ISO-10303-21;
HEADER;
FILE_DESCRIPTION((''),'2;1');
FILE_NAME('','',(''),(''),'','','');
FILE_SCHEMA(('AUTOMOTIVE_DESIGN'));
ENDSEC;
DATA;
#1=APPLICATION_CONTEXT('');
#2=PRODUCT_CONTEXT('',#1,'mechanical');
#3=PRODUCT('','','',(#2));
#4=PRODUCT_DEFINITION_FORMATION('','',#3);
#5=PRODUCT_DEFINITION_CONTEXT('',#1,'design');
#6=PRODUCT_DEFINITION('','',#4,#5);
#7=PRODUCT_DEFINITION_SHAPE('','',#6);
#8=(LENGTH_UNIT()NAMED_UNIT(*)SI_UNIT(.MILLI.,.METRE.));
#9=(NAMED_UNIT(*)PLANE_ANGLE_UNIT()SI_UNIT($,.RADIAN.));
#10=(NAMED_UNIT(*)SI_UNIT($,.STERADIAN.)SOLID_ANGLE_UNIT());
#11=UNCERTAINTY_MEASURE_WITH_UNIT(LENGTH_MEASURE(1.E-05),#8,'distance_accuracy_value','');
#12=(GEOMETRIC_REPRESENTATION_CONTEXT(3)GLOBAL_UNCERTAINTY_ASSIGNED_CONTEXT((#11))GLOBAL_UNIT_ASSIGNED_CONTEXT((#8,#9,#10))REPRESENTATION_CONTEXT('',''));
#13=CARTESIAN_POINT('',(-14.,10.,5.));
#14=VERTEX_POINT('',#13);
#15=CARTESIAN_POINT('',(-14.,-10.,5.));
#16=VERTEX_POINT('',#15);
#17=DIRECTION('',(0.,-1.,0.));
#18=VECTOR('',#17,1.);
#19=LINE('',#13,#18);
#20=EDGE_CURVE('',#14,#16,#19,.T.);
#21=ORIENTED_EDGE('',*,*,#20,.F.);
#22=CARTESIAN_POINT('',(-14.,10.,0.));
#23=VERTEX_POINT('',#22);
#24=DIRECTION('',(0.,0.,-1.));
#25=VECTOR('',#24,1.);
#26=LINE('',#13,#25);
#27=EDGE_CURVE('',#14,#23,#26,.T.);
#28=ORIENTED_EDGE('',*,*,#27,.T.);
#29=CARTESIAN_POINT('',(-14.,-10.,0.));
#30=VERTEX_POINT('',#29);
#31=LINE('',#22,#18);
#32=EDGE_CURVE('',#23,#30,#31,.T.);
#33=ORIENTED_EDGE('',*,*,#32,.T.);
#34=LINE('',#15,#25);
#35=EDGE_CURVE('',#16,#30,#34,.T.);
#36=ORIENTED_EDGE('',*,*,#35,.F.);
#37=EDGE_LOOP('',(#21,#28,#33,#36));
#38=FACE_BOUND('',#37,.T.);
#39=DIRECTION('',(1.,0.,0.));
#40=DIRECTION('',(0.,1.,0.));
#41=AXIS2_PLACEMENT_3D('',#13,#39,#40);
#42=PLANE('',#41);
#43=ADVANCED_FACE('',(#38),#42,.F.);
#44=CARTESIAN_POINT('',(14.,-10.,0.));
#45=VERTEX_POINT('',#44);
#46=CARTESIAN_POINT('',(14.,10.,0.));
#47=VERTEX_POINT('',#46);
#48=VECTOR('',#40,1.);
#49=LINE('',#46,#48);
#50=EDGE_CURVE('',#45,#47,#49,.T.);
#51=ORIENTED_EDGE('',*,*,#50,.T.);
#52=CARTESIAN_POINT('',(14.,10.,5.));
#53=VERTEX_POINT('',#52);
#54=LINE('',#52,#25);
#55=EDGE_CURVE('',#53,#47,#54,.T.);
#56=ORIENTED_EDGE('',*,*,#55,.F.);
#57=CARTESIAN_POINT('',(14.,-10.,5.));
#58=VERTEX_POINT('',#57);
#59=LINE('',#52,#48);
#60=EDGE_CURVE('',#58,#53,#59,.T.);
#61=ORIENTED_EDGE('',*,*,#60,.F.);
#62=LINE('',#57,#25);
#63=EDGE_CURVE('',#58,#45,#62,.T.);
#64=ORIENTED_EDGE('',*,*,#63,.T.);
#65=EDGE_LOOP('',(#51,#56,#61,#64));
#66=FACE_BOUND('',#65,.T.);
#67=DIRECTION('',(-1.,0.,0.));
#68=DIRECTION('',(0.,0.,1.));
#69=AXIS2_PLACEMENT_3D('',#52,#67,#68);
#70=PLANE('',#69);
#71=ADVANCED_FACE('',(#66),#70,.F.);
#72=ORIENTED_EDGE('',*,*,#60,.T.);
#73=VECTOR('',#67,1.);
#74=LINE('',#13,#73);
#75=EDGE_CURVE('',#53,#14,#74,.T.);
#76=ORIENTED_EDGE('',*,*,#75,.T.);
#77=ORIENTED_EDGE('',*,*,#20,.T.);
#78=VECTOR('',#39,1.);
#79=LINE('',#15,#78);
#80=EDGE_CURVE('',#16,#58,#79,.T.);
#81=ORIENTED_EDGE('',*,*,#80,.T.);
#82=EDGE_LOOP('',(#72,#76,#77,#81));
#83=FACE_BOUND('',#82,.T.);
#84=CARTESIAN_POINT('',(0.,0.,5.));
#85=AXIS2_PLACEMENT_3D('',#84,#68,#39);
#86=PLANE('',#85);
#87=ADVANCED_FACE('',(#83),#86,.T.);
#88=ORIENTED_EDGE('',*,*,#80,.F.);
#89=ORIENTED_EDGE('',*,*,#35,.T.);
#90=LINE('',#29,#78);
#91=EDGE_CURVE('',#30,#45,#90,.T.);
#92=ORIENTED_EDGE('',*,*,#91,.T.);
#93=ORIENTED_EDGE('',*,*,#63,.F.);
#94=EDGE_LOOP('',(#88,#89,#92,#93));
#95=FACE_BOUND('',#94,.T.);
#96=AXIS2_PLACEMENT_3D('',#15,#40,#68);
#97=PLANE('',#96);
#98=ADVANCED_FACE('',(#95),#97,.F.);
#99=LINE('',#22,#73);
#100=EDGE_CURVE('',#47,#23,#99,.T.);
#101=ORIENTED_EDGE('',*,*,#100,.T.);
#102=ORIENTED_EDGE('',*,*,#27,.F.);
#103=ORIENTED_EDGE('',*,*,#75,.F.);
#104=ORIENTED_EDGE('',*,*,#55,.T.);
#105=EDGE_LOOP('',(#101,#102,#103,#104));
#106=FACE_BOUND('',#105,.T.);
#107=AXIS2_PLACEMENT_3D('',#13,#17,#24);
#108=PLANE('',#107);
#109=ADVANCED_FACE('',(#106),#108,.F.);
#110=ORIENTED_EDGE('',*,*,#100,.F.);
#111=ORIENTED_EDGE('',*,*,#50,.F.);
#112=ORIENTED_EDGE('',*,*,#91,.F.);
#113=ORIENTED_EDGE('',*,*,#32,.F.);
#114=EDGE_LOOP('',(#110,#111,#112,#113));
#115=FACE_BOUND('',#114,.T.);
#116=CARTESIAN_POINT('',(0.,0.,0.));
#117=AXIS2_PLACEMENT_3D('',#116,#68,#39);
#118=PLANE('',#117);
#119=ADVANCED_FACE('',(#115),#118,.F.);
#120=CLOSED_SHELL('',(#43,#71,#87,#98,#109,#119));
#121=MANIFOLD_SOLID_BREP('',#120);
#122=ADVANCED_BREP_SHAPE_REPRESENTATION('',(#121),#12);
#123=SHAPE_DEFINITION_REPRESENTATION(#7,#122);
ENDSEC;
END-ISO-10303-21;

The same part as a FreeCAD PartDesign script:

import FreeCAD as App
import Part
import Sketcher
Q = App.Units.Quantity

doc = App.newDocument("Part")
body = doc.addObject("PartDesign::Body", "Body")

# Sketch on XY plane
sketch1 = doc.addObject("Sketcher::SketchObject", "Sketch")
body.addObject(sketch1)
sketch1.AttachmentSupport = (doc.XY_Plane, [""])
sketch1.MapMode = "FlatFace"
sketch1.addGeometry([
    Part.LineSegment(App.Vector(-14, 10, 0), App.Vector(-14, -10, 0)),
    Part.LineSegment(App.Vector(-14, -10, 0), App.Vector(14, -10, 0)),
    Part.LineSegment(App.Vector(14, -10, 0), App.Vector(14, 10, 0)),
    Part.LineSegment(App.Vector(14, 10, 0), App.Vector(-14, 10, 0)),
], False)
sketch1.addConstraint([
    Sketcher.Constraint("Coincident", 0, 2, 1, 1),
    Sketcher.Constraint("Coincident", 1, 2, 2, 1),
    Sketcher.Constraint("Coincident", 2, 2, 3, 1),
    Sketcher.Constraint("Coincident", 3, 2, 0, 1),
    Sketcher.Constraint("Vertical", 0),
    Sketcher.Constraint("Horizontal", 1),
    Sketcher.Constraint("Vertical", 2),
    Sketcher.Constraint("Horizontal", 3),
    Sketcher.Constraint("Symmetric", 0, 2, 2, 2, -1, 1),
    Sketcher.Constraint("DistanceX", 1, 1, 1, 2, Q("28 mm")),
    Sketcher.Constraint("DistanceY", 0, 2, 0, 1, Q("20 mm")),
])
pad1 = doc.addObject("PartDesign::Pad", "Pad")
body.addObject(pad1)
pad1.Profile = sketch1
pad1.Length = 5

doc.recompute()
